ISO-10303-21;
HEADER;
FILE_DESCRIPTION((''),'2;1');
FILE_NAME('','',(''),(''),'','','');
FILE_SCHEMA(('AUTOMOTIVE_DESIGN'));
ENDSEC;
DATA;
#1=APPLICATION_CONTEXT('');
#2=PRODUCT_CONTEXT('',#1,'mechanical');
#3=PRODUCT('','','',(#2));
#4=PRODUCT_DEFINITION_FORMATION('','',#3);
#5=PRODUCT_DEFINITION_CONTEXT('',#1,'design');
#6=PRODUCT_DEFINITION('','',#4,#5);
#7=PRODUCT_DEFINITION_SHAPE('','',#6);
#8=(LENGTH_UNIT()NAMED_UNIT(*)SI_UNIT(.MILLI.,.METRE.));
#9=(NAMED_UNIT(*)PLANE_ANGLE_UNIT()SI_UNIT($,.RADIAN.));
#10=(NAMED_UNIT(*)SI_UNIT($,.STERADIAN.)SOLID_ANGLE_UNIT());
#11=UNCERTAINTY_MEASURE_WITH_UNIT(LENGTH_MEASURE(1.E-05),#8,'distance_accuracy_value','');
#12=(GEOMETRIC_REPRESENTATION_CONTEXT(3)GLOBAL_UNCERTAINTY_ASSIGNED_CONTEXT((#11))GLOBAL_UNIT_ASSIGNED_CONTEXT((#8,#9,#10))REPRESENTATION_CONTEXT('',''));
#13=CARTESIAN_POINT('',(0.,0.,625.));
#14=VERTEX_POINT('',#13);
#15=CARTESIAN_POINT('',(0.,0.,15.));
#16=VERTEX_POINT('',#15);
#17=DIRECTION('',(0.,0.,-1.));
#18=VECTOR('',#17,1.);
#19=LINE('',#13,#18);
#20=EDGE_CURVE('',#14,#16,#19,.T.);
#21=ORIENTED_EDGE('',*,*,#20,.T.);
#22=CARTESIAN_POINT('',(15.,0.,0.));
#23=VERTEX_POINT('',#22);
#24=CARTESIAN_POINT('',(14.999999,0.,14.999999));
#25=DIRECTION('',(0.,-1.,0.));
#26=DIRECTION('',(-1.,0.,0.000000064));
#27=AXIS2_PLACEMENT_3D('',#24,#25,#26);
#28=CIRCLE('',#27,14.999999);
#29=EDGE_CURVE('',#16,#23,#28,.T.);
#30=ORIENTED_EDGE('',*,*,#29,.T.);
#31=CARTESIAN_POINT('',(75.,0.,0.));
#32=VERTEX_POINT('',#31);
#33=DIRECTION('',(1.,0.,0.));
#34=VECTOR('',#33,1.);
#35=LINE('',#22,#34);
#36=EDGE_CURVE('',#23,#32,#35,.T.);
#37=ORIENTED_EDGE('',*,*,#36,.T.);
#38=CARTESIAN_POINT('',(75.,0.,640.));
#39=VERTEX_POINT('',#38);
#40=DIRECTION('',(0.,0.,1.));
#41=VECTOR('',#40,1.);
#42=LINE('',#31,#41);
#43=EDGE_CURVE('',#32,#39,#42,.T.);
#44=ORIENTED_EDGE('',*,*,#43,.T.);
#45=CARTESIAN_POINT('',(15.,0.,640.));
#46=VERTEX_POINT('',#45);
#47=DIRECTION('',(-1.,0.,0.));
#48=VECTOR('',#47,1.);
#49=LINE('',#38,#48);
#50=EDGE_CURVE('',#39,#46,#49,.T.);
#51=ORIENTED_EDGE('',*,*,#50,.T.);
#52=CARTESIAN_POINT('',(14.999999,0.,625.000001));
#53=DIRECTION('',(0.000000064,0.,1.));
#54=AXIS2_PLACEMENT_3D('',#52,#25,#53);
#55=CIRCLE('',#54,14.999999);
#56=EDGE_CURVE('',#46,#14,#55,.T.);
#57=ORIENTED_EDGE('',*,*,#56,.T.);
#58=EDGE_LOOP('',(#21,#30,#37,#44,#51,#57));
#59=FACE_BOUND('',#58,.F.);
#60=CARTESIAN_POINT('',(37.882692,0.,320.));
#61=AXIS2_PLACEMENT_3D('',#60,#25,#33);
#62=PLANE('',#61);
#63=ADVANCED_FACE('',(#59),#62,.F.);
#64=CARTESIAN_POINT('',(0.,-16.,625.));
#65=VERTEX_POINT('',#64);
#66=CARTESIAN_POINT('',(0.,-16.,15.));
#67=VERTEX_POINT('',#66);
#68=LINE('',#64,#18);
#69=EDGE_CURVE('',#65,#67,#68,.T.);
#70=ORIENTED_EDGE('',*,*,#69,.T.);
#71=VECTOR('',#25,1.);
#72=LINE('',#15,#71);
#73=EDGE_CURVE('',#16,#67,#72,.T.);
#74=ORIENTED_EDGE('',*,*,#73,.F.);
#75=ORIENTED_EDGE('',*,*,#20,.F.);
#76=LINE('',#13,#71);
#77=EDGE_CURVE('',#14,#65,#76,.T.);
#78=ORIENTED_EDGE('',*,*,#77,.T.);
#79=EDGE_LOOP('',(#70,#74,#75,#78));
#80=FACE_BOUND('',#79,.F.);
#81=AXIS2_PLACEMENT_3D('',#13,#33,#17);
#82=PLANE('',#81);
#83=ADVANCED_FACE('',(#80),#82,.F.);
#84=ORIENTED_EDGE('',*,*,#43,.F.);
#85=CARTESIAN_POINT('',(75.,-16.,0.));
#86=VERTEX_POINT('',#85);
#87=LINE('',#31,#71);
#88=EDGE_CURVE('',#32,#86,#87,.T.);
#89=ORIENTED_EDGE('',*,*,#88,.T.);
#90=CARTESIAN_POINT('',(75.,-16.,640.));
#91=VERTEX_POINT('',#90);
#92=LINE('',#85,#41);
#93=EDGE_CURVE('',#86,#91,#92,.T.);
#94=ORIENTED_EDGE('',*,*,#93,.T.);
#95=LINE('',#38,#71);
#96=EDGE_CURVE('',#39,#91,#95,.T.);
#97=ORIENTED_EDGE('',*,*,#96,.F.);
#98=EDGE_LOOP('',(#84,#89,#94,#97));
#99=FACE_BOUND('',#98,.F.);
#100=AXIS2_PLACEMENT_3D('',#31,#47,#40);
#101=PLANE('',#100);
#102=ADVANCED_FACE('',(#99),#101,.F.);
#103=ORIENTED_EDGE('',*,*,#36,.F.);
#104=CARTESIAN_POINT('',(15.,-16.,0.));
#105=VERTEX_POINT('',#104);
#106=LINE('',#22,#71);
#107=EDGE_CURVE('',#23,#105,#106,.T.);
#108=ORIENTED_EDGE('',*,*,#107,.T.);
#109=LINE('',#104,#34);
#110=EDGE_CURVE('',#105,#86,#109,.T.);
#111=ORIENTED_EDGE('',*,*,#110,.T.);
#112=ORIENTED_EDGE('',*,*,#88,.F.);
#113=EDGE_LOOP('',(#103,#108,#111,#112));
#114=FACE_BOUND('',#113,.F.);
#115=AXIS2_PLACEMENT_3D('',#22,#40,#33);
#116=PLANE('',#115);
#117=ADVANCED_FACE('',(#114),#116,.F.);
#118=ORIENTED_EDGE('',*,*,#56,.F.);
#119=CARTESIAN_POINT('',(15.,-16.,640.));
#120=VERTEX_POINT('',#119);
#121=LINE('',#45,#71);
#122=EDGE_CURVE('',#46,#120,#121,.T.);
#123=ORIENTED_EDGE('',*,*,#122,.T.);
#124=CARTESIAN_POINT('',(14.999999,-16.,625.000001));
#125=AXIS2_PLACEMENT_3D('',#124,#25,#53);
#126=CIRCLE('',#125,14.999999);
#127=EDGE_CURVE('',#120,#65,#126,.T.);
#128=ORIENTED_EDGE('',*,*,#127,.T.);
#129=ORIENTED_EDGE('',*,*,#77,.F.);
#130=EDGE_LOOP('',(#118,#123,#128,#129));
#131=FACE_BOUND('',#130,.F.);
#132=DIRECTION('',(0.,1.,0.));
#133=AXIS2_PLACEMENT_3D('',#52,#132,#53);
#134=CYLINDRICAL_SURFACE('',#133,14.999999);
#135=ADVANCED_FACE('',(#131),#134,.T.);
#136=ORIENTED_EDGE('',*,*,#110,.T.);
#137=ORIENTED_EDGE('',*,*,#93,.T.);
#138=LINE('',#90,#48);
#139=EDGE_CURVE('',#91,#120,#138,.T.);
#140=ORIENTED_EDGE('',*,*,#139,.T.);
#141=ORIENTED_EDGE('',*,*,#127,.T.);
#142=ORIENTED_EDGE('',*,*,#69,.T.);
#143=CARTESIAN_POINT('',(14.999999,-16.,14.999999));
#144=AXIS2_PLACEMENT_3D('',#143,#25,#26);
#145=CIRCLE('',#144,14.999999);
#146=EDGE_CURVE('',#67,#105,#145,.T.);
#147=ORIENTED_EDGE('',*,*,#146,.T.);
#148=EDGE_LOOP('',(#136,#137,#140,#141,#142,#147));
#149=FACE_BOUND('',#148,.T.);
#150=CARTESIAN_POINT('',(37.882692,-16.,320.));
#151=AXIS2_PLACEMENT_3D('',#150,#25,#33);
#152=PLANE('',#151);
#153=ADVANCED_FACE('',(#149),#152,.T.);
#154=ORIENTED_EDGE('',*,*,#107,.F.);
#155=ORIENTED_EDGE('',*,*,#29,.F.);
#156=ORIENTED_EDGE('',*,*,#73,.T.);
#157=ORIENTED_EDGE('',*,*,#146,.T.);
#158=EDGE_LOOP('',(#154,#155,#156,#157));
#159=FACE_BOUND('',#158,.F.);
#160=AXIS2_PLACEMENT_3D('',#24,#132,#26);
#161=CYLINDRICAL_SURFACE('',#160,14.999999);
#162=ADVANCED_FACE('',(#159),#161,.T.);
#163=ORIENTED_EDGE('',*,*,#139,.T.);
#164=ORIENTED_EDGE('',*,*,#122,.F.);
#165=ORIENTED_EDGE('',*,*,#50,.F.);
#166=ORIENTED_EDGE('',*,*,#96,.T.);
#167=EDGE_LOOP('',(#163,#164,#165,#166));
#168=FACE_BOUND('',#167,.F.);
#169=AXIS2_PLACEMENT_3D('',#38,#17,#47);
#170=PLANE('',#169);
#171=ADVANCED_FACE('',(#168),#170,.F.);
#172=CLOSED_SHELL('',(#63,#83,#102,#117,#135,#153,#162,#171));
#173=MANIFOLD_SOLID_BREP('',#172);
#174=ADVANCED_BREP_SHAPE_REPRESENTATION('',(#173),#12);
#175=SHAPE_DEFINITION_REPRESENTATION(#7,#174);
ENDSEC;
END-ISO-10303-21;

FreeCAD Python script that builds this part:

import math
import FreeCAD as App
import Part
import Sketcher
from FreeCAD import Vector
Q = App.Units.Quantity

doc = App.newDocument("Part")
params = doc.addObject("Spreadsheet::Sheet", "Params")
for row, (alias, value) in enumerate([
    ("sketch1_radius", "14.999999 mm"),
    ("sketch1_width", "60 mm"),
    ("sketch1_height", "610 mm"),
    ("pad1_length", "16 mm"),
], start=1):
    params.set(f"A{row}", alias)
    params.set(f"B{row}", "=" + value)
    params.setAlias(f"B{row}", alias)

body = doc.addObject("PartDesign::Body", "Body")

sketch1 = doc.addObject("Sketcher::SketchObject", "Sketch")
body.addObject(sketch1)
sketch1.AttachmentSupport = (doc.XZ_Plane, [""])
sketch1.MapMode = "FlatFace"
sketch1.addGeometry([
    Part.LineSegment(Vector(75, 640, 0), Vector(15, 640, 0)),
    Part.ArcOfCircle(Part.Circle(Vector(15, 625, 0), Vector(0, 0, 1), 15), math.radians(90), math.radians(180)),
    Part.LineSegment(Vector(0, 625, 0), Vector(0, 15, 0)),
    Part.ArcOfCircle(Part.Circle(Vector(15, 15, 0), Vector(0, 0, 1), 15), math.radians(180), math.radians(270)),
    Part.LineSegment(Vector(15, 0, 0), Vector(75, 0, 0)),
    Part.LineSegment(Vector(75, 0, 0), Vector(75, 640, 0)),
], False)
sketch1.addConstraint([
    Sketcher.Constraint("Tangent", 0, 2, 1, 1),
    Sketcher.Constraint("Tangent", 1, 2, 2, 1),
    Sketcher.Constraint("Tangent", 2, 2, 3, 1),
    Sketcher.Constraint("Tangent", 3, 2, 4, 1),
    Sketcher.Constraint("Coincident", 4, 2, 5, 1),
    Sketcher.Constraint("Coincident", 5, 2, 0, 1),
    Sketcher.Constraint("Horizontal", 0),
    Sketcher.Constraint("Vertical", 2),
    Sketcher.Constraint("Horizontal", 4),
    Sketcher.Constraint("Vertical", 5),
    Sketcher.Constraint("Equal", 1, 3),
    Sketcher.Constraint("PointOnObject", 1, 2, -2),
    Sketcher.Constraint("PointOnObject", 3, 2, -1),
    Sketcher.Constraint("Radius", 1, Q("14.999999 mm")),
    Sketcher.Constraint("DistanceX", 0, 2, 0, 1, Q("60 mm")),
    Sketcher.Constraint("DistanceY", 2, 2, 2, 1, Q("610 mm")),
])
sketch1.setExpression("Constraints[13]", "Params.sketch1_radius")
sketch1.setExpression("Constraints[14]", "Params.sketch1_width")
sketch1.setExpression("Constraints[15]", "Params.sketch1_height")
pad1 = doc.addObject("PartDesign::Pad", "Pad")
body.addObject(pad1)
pad1.Profile = sketch1
pad1.setExpression("Length", "Params.pad1_length")

doc.recompute()
